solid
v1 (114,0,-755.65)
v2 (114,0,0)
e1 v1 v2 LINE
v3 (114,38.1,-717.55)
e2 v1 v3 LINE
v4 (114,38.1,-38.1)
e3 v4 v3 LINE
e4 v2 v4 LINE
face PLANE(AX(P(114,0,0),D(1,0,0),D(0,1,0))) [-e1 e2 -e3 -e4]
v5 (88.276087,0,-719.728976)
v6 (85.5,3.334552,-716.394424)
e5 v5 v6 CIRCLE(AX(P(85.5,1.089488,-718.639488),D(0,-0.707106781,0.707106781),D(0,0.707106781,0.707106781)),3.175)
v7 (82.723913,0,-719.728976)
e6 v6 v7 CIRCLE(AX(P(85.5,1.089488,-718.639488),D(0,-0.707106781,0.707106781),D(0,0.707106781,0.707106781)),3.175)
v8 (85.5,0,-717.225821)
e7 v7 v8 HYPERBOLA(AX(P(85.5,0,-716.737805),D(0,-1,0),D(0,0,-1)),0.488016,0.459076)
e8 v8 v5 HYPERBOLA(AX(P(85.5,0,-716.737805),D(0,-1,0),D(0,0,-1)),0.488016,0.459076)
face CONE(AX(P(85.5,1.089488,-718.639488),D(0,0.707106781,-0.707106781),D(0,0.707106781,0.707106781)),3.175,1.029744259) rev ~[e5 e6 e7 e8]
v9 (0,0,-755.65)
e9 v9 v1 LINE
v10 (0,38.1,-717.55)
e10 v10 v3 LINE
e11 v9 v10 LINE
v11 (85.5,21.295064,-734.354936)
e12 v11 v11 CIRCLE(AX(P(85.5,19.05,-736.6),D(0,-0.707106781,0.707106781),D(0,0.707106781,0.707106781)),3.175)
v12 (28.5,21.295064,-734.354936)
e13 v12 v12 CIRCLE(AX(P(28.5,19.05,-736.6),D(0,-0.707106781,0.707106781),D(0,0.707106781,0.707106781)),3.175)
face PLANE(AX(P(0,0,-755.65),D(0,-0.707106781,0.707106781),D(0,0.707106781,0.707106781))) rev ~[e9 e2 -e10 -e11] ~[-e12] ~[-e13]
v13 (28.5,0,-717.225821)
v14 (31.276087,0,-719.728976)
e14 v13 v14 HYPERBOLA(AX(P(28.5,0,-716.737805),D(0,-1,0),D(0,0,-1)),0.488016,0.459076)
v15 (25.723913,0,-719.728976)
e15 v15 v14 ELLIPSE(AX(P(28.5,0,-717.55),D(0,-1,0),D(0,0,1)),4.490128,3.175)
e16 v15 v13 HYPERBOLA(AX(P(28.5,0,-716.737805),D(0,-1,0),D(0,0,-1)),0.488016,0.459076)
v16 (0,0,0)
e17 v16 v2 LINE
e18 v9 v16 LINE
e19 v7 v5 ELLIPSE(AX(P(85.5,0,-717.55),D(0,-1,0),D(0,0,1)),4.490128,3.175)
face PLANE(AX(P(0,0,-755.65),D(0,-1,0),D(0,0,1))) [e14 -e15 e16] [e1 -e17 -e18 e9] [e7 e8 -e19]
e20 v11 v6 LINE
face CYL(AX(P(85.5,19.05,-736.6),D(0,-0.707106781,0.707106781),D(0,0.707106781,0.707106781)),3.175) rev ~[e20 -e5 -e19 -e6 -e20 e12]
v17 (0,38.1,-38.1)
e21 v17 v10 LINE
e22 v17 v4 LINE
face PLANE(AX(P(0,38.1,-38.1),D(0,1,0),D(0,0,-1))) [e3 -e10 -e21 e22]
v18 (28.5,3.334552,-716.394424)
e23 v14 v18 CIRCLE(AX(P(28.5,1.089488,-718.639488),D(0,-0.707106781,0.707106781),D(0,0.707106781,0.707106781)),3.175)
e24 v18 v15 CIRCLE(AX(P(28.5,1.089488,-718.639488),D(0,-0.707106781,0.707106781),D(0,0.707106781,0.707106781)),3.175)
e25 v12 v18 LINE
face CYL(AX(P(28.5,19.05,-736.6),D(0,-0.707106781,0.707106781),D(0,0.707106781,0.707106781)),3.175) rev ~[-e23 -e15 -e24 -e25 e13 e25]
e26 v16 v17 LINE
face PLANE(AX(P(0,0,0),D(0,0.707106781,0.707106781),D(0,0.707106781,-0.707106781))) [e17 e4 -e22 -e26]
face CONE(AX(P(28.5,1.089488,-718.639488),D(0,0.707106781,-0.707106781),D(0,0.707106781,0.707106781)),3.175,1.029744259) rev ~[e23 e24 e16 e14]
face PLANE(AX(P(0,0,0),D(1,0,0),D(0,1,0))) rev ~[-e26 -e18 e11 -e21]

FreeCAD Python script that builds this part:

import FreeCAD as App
import Part
import Sketcher
Q = App.Units.Quantity


def add_polygon(sketch, points):
    """Adds a closed chain of lines whose ends are joined by coincident constraints."""
    first, n = sketch.GeometryCount, len(points)
    for a, b in zip(points, points[1:] + points[:1]):
        sketch.addGeometry(Part.LineSegment(App.Vector(*a, 0), App.Vector(*b, 0)), False)
    for i in range(n):
        sketch.addConstraint(Sketcher.Constraint("Coincident", first + i, 2, first + (i + 1) % n, 1))

doc = App.newDocument("Part")
body = doc.addObject("PartDesign::Body", "Body")

# Sketch on YZ plane
sketch1 = body.newObject("Sketcher::SketchObject", "Sketch")
sketch1.AttachmentSupport = (doc.getObject("YZ_Plane"), [""])
sketch1.MapMode = "FlatFace"
add_polygon(sketch1, [(38, -718), (38, -38), (0, 0), (0, -756)])  # lines 0-3
sketch1.addConstraint([
    Sketcher.Constraint("Vertical", 0),
    Sketcher.Constraint("Vertical", 2),
    Sketcher.Constraint("Coincident", 1, 2, -1, 1),
    Sketcher.Constraint("Perpendicular", 1, 3),
    Sketcher.Constraint("Equal", 1, 3),
    Sketcher.Constraint("DistanceY", 2, 2, 2, 1, Q("29.75 in")),
    Sketcher.Constraint("DistanceY", 0, 1, 0, 2, Q("26.75 in")),
])
pad1 = body.newObject("PartDesign::Pad", "Pad")
pad1.Profile = sketch1
pad1.Length = Q("4.488189 in")

# Sketch on an angled plane
sketch2 = body.newObject("Sketcher::SketchObject", "Sketch001")
sketch2.Placement = App.Placement(App.Vector(0, 377.825, -377.825), App.Rotation(App.Vector(0, 0.707106781, 0.707106781), App.Vector(0.999999999, 0, 0), App.Vector(0, 0.707106781, -0.707106781), "ZXY"))
sketch2.addGeometry([
    Part.Circle(App.Vector(-507.4, 85.5, 0), App.Vector(0, 0, 1), 3.2),
    Part.Circle(App.Vector(-507.4, 28.5, 0), App.Vector(0, 0, 1), 3.2),
], False)
sketch2.addConstraint([
    Sketcher.Constraint("Equal", 0, 1),
    Sketcher.Constraint("Vertical", 0, 3, 1, 3),
    Sketcher.Constraint("Diameter", 0, Q("0.25 in")),
    Sketcher.Constraint("DistanceY", 1, 3, 0, 3, Q("2.2441 in")),
    Sketcher.Constraint("DistanceX", 0, 3, -1, 1, Q("507.3845 mm")),
    Sketcher.Constraint("DistanceY", -1, 1, 0, 3, Q("85.5 mm")),
])
doc.recompute()
hole = body.newObject("PartDesign::Hole", "Hole")
hole.Profile = sketch2
hole.ThreadType = "None"
hole.Diameter = Q("0.25 in")
hole.DepthType = "Dimension"
hole.Depth = Q("1 in")
hole.DrillPoint = "Angled"
hole.DrillPointAngle = 118

doc.recompute()
